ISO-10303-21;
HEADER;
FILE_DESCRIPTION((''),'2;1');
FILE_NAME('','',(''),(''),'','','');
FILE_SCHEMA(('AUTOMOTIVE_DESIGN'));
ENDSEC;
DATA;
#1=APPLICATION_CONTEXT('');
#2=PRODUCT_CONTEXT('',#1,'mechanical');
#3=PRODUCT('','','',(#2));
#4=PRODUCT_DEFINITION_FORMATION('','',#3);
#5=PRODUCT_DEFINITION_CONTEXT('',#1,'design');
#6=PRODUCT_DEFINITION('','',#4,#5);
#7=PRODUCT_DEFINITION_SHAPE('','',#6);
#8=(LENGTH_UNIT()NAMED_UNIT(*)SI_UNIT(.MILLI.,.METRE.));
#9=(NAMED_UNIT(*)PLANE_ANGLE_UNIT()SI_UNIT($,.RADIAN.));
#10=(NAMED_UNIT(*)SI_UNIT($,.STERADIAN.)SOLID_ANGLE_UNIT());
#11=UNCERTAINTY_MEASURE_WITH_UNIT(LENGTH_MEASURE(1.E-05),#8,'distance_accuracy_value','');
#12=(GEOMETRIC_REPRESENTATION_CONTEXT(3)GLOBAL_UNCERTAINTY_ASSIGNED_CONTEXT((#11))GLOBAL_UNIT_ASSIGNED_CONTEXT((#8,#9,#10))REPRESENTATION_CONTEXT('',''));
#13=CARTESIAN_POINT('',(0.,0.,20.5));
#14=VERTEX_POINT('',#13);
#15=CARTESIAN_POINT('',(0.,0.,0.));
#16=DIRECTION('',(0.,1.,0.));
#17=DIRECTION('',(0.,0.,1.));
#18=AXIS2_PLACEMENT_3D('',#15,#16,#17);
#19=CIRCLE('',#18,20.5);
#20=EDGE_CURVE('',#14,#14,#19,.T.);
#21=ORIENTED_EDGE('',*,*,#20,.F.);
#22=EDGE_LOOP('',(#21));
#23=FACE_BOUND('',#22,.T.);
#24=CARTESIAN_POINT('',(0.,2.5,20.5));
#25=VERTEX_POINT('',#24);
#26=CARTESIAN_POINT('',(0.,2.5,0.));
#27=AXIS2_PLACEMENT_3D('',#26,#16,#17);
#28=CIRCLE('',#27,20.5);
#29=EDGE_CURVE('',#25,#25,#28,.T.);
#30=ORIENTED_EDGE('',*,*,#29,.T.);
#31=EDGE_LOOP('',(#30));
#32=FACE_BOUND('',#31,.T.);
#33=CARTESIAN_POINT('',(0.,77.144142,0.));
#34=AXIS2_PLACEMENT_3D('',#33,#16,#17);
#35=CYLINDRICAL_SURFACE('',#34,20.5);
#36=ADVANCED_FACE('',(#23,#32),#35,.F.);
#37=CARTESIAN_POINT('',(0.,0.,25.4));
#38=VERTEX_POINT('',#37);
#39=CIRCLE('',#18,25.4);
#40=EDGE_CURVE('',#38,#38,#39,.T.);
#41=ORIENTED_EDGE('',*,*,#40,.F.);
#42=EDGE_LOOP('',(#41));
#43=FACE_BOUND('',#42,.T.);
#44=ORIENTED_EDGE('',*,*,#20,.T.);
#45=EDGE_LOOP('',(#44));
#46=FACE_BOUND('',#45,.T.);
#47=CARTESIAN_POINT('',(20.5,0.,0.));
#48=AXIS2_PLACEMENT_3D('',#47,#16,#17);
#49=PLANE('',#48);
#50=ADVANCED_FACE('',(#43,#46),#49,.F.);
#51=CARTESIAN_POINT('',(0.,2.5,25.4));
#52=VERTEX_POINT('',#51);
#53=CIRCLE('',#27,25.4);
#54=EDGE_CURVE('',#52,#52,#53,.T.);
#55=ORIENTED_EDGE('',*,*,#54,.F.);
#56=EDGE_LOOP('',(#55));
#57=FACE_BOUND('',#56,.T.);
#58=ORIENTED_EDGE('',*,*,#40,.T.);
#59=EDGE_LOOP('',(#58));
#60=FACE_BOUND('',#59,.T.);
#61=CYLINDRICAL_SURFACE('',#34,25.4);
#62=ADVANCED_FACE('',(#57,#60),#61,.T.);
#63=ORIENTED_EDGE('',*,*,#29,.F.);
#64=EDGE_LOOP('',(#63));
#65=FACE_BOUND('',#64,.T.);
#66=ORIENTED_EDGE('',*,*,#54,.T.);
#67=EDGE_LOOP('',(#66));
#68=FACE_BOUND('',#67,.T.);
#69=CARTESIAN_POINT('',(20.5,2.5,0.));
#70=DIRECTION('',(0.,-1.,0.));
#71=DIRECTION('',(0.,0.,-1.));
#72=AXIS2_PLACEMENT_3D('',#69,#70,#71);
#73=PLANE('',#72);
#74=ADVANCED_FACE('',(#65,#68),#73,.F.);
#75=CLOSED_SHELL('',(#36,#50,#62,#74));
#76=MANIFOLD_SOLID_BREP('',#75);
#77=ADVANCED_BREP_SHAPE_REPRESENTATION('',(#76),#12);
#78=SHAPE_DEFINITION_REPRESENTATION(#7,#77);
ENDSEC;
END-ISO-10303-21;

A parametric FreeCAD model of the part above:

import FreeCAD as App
import Part
import Sketcher


def add_polygon(sketch, points):
    """Adds a closed chain of lines whose ends are joined by coincident constraints."""
    first, n = sketch.GeometryCount, len(points)
    for a, b in zip(points, points[1:] + points[:1]):
        sketch.addGeometry(Part.LineSegment(App.Vector(*a, 0), App.Vector(*b, 0)), False)
    for i in range(n):
        sketch.addConstraint(Sketcher.Constraint("Coincident", first + i, 2, first + (i + 1) % n, 1))

doc = App.newDocument("Part")
params = doc.addObject("Spreadsheet::Sheet", "Params")
for row, (alias, value) in enumerate([
    ("sketch1_width", "4.9 mm"),
    ("sketch1_height", "2.5 mm"),
    ("revolution_angle", "360 deg"),
], start=1):
    params.set(f"A{row}", alias)
    params.set(f"B{row}", "=" + value)
    params.setAlias(f"B{row}", alias)

body = doc.addObject("PartDesign::Body", "Body")

# Sketch on XY plane
sketch1 = body.newObject("Sketcher::SketchObject", "Sketch")
sketch1.AttachmentSupport = (doc.getObject("XY_Plane"), [""])
sketch1.MapMode = "FlatFace"
add_polygon(sketch1, [(20.5, 2.5), (20.5, 0), (25.4, 0), (25.4, 2.5)])  # lines 0-3
sketch1.addConstraint(Sketcher.Constraint("Vertical", 0))
sketch1.addConstraint(Sketcher.Constraint("Horizontal", 1))
sketch1.addConstraint(Sketcher.Constraint("Vertical", 2))
sketch1.addConstraint(Sketcher.Constraint("Horizontal", 3))
sketch1.addConstraint(Sketcher.Constraint("PointOnObject", 0, 2, -1))
sketch1.addConstraint(Sketcher.Constraint("DistanceX", 1, 1, 1, 2, 4.9))
sketch1.addConstraint(Sketcher.Constraint("DistanceY", 0, 2, 0, 1, 2.5))
sketch1.addConstraint(Sketcher.Constraint("DistanceX", -1, 1, 0, 2, 20.5))
sketch1.setExpression("Constraints[9]", "Params.sketch1_width")
sketch1.setExpression("Constraints[10]", "Params.sketch1_height")
revolution = body.newObject("PartDesign::Revolution", "Revolution")
revolution.Profile = sketch1
revolution.ReferenceAxis = (sketch1, ["V_Axis"])
revolution.setExpression("Angle", "Params.revolution_angle")

doc.recompute()
